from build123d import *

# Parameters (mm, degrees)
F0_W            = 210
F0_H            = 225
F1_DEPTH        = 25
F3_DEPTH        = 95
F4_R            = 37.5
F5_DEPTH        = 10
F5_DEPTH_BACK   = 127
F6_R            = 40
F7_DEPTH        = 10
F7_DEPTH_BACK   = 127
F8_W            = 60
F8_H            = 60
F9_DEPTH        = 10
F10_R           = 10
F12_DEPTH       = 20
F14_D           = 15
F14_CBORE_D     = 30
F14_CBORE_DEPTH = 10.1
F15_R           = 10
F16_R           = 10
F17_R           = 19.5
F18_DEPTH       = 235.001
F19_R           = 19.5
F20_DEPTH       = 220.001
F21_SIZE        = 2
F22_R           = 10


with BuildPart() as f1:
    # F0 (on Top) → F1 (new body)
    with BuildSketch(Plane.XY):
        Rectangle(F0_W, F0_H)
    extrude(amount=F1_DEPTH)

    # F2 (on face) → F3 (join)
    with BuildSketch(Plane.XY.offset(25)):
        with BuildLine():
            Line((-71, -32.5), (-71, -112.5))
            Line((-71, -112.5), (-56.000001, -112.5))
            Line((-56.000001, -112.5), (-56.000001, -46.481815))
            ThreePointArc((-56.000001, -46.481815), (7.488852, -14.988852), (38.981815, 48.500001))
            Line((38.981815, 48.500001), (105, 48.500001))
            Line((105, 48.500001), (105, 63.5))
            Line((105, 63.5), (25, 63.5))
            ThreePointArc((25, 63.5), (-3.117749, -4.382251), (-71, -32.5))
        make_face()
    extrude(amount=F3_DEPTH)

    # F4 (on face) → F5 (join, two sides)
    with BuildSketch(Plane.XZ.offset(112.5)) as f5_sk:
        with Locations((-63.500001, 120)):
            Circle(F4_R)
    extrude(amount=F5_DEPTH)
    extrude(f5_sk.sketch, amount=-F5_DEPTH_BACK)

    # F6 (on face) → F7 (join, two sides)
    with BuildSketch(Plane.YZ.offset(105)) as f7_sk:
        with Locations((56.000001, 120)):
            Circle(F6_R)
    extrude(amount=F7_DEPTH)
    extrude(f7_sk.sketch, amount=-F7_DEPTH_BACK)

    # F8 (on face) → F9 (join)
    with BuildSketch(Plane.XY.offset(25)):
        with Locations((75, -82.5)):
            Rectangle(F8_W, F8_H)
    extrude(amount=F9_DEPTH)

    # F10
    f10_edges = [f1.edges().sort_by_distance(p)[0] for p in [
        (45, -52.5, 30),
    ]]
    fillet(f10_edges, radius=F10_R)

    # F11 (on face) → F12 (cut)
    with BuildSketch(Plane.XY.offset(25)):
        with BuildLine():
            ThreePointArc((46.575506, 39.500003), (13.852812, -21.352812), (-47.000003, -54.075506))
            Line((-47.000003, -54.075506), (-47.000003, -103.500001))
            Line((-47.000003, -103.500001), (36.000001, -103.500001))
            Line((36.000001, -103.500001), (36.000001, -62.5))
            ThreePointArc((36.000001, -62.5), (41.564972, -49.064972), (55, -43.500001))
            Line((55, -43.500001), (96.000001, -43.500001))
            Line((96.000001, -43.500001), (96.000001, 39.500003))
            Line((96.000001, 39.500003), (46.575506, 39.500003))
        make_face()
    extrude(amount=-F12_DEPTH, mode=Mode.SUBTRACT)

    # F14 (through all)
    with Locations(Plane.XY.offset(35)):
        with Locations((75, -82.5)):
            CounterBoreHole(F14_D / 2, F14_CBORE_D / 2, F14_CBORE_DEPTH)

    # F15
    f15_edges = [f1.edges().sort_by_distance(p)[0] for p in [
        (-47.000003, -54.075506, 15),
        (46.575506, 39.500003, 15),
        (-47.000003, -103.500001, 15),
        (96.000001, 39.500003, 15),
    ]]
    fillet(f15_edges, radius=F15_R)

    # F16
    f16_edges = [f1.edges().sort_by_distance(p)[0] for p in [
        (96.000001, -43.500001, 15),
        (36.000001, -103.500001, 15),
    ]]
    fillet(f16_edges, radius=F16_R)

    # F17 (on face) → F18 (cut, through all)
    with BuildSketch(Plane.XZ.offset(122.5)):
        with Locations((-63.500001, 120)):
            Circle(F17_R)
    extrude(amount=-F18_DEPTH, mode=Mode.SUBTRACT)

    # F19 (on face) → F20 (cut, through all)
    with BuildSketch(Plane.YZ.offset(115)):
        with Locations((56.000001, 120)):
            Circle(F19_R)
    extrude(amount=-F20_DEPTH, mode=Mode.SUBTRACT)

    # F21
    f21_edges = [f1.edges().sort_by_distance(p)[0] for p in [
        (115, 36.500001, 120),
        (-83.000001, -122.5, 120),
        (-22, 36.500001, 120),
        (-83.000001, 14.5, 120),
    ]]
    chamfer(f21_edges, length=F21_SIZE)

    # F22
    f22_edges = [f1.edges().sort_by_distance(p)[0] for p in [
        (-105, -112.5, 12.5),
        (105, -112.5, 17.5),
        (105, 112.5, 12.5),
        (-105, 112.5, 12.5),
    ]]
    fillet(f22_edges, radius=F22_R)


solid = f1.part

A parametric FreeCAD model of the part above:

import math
import FreeCAD as App
import Part
import Sketcher


def edges_at(feature, points):
    """Names of the edges that pass closest to the given points."""
    edges = feature.Shape.Edges
    near = lambda p: min(range(len(edges)), key=lambda i: edges[i].distToShape(Part.Vertex(*p))[0])
    return sorted({f"Edge{near(p) + 1}" for p in points})

doc = App.newDocument("Part")
body = doc.addObject("PartDesign::Body", "Body")

# Sketch on XY plane
sketch1 = body.newObject("Sketcher::SketchObject", "Sketch")
sketch1.AttachmentSupport = (doc.getObject("XY_Plane"), [""])
sketch1.MapMode = "FlatFace"
sketch1.addGeometry([
    Part.LineSegment(App.Vector(-105, 112, 0), App.Vector(-105, -112, 0)),
    Part.LineSegment(App.Vector(-105, -112, 0), App.Vector(105, -112, 0)),
    Part.LineSegment(App.Vector(105, -112, 0), App.Vector(105, 112, 0)),
    Part.LineSegment(App.Vector(105, 112, 0), App.Vector(-105, 112, 0)),
], False)
sketch1.addConstraint([
    Sketcher.Constraint("Coincident", 0, 2, 1, 1),
    Sketcher.Constraint("Coincident", 1, 2, 2, 1),
    Sketcher.Constraint("Coincident", 2, 2, 3, 1),
    Sketcher.Constraint("Coincident", 3, 2, 0, 1),
    Sketcher.Constraint("Vertical", 0),
    Sketcher.Constraint("Horizontal", 1),
    Sketcher.Constraint("Vertical", 2),
    Sketcher.Constraint("Horizontal", 3),
    Sketcher.Constraint("Symmetric", 0, 2, 2, 2, -1, 1),
    Sketcher.Constraint("DistanceX", 1, 1, 1, 2, 210.0),
    Sketcher.Constraint("DistanceY", 0, 2, 0, 1, 225.0),
])
pad1 = body.newObject("PartDesign::Pad", "Pad")
pad1.Profile = sketch1
pad1.Length = 25

# Sketch on XY plane
sketch2 = body.newObject("Sketcher::SketchObject", "Sketch001")
sketch2.AttachmentSupport = (doc.getObject("XY_Plane"), [""])
sketch2.MapMode = "FlatFace"
sketch2.AttachmentOffset = App.Placement(App.Vector(0, 0, 25), App.Rotation())
sketch2.addGeometry([
    Part.LineSegment(App.Vector(-71, -32, 0), App.Vector(-71, -112, 0)),  # 0
    Part.LineSegment(App.Vector(-71, -112, 0), App.Vector(-56, -112, 0)),  # 1
    Part.LineSegment(App.Vector(-56, -112, 0), App.Vector(-56, -46, 0)),  # 2
    Part.ArcOfCircle(Part.Circle(App.Vector(-71, 63, 0), App.Vector(0, 0, 1), 111), math.radians(-82), math.radians(-8)),  # 3
    Part.LineSegment(App.Vector(39, 49, 0), App.Vector(105, 49, 0)),  # 4
    Part.LineSegment(App.Vector(105, 49, 0), App.Vector(105, 64, 0)),  # 5
    Part.LineSegment(App.Vector(105, 64, 0), App.Vector(25, 64, 0)),  # 6
    Part.ArcOfCircle(Part.Circle(App.Vector(-71, 63, 0), App.Vector(0, 0, 1), 96), math.radians(-90), math.radians(0)),  # 7
], False)
sketch2.addConstraint([
    Sketcher.Constraint("Coincident", 0, 2, 1, 1),
    Sketcher.Constraint("Coincident", 1, 2, 2, 1),
    Sketcher.Constraint("Coincident", 2, 2, 3, 1),
    Sketcher.Constraint("Coincident", 3, 2, 4, 1),
    Sketcher.Constraint("Coincident", 4, 2, 5, 1),
    Sketcher.Constraint("Coincident", 5, 2, 6, 1),
    Sketcher.Constraint("Coincident", 6, 2, 7, 2),
    Sketcher.Constraint("Coincident", 7, 1, 0, 1),
    Sketcher.Constraint("Vertical", 0),
    Sketcher.Constraint("Horizontal", 1),
    Sketcher.Constraint("Vertical", 2),
    Sketcher.Constraint("Horizontal", 4),
    Sketcher.Constraint("Vertical", 5),
    Sketcher.Constraint("Horizontal", 6),
    Sketcher.Constraint("Coincident", 7, 3, 3, 3),
    Sketcher.Constraint("Horizontal", 7, 3, 5, 2),
    Sketcher.Constraint("Vertical", 7, 3, 0, 2),
    Sketcher.Constraint("Equal", 6, 0),
    Sketcher.Constraint("Equal", 4, 2),
    Sketcher.Constraint("Radius", 7, 96.0),
    Sketcher.Constraint("DistanceX", 1, 1, 1, 2, 14.999999),
    Sketcher.Constraint("DistanceX", 6, 2, 6, 1, 80.0),
    Sketcher.Constraint("DistanceX", 7, 3, -1, 1, 71.0),
    Sketcher.Constraint("DistanceY", -1, 1, 7, 3, 63.5),
    Sketcher.Constraint("Radius", 3, 110.999995),
])
pad2 = body.newObject("PartDesign::Pad", "Pad001")
pad2.Profile = sketch2
pad2.Length = 95

# Sketch on XZ plane
sketch3 = body.newObject("Sketcher::SketchObject", "Sketch002")
sketch3.AttachmentSupport = (doc.getObject("XZ_Plane"), [""])
sketch3.MapMode = "FlatFace"
sketch3.AttachmentOffset = App.Placement(App.Vector(0, 0, 112.5), App.Rotation())
sketch3.addGeometry(Part.Circle(App.Vector(-64, 120, 0), App.Vector(0, 0, 1), 38), False)
sketch3.addConstraint([
    Sketcher.Constraint("Diameter", 0, 75.0),
    Sketcher.Constraint("DistanceY", -1, 1, 0, 3, 120.0),
    Sketcher.Constraint("DistanceX", 0, 3, -1, 1, 63.500001),
])
pad3 = body.newObject("PartDesign::Pad", "Pad002")
pad3.Profile = sketch3
pad3.Type = "TwoLengths"
pad3.Length = 10
pad3.Length2 = 127

# Sketch on YZ plane
sketch4 = body.newObject("Sketcher::SketchObject", "Sketch003")
sketch4.AttachmentSupport = (doc.getObject("YZ_Plane"), [""])
sketch4.MapMode = "FlatFace"
sketch4.AttachmentOffset = App.Placement(App.Vector(0, 0, 105), App.Rotation())
sketch4.addGeometry(Part.Circle(App.Vector(56, 120, 0), App.Vector(0, 0, 1), 40), False)
sketch4.addConstraint([
    Sketcher.Constraint("Diameter", 0, 80.0),
    Sketcher.Constraint("DistanceX", -1, 1, 0, 3, 56.000001),
    Sketcher.Constraint("DistanceY", -1, 1, 0, 3, 120.0),
])
pad4 = body.newObject("PartDesign::Pad", "Pad003")
pad4.Profile = sketch4
pad4.Type = "TwoLengths"
pad4.Length = 10
pad4.Length2 = 127

# Sketch on XY plane
sketch5 = body.newObject("Sketcher::SketchObject", "Sketch004")
sketch5.AttachmentSupport = (doc.getObject("XY_Plane"), [""])
sketch5.MapMode = "FlatFace"
sketch5.AttachmentOffset = App.Placement(App.Vector(0, 0, 25), App.Rotation())
sketch5.addGeometry([
    Part.LineSegment(App.Vector(45, -52, 0), App.Vector(45, -112, 0)),
    Part.LineSegment(App.Vector(45, -112, 0), App.Vector(105, -112, 0)),
    Part.LineSegment(App.Vector(105, -112, 0), App.Vector(105, -52, 0)),
    Part.LineSegment(App.Vector(105, -52, 0), App.Vector(45, -52, 0)),
], False)
sketch5.addConstraint([
    Sketcher.Constraint("Coincident", 0, 2, 1, 1),
    Sketcher.Constraint("Coincident", 1, 2, 2, 1),
    Sketcher.Constraint("Coincident", 2, 2, 3, 1),
    Sketcher.Constraint("Coincident", 3, 2, 0, 1),
    Sketcher.Constraint("Vertical", 0),
    Sketcher.Constraint("Horizontal", 1),
    Sketcher.Constraint("Vertical", 2),
    Sketcher.Constraint("Horizontal", 3),
    Sketcher.Constraint("Equal", 3, 0),
    Sketcher.Constraint("DistanceX", 1, 1, 1, 2, 60.0),
    Sketcher.Constraint("DistanceX", -1, 1, 0, 2, 45.0),
    Sketcher.Constraint("DistanceY", 0, 2, -1, 1, 112.5),
])
pad5 = body.newObject("PartDesign::Pad", "Pad004")
pad5.Profile = sketch5
pad5.Length = 10
doc.recompute()

fillet = body.newObject("PartDesign::Fillet", "Fillet")
fillet.Base = (pad5, edges_at(pad5, [(45, -52.5, 30)]))
fillet.Radius = 10

# Sketch on XY plane
sketch6 = body.newObject("Sketcher::SketchObject", "Sketch005")
sketch6.AttachmentSupport = (doc.getObject("XY_Plane"), [""])
sketch6.MapMode = "FlatFace"
sketch6.AttachmentOffset = App.Placement(App.Vector(0, 0, 25), App.Rotation())
sketch6.addGeometry([
    Part.ArcOfCircle(Part.Circle(App.Vector(-71, 64, 0), App.Vector(0, 0, 1), 120), math.radians(-78), math.radians(-12)),  # 0
    Part.LineSegment(App.Vector(-47, -54, 0), App.Vector(-47, -104, 0)),  # 1
    Part.LineSegment(App.Vector(-47, -104, 0), App.Vector(36, -104, 0)),  # 2
    Part.LineSegment(App.Vector(36, -104, 0), App.Vector(36, -62, 0)),  # 3
    Part.ArcOfCircle(Part.Circle(App.Vector(55, -63, 0), App.Vector(0, 0, 1), 19), math.radians(90), math.radians(180)),  # 4
    Part.LineSegment(App.Vector(55, -44, 0), App.Vector(96, -44, 0)),  # 5
    Part.LineSegment(App.Vector(96, -44, 0), App.Vector(96, 40, 0)),  # 6
    Part.LineSegment(App.Vector(96, 40, 0), App.Vector(47, 40, 0)),  # 7
], False)
sketch6.addConstraint([
    Sketcher.Constraint("Coincident", 0, 1, 1, 1),
    Sketcher.Constraint("Coincident", 1, 2, 2, 1),
    Sketcher.Constraint("Coincident", 2, 2, 3, 1),
    Sketcher.Constraint("Tangent", 3, 2, 4, 2),
    Sketcher.Constraint("Tangent", 4, 1, 5, 1),
    Sketcher.Constraint("Coincident", 5, 2, 6, 1),
    Sketcher.Constraint("Coincident", 6, 2, 7, 1),
    Sketcher.Constraint("Coincident", 7, 2, 0, 2),
    Sketcher.Constraint("Vertical", 1),
    Sketcher.Constraint("Horizontal", 2),
    Sketcher.Constraint("Vertical", 3),
    Sketcher.Constraint("Horizontal", 5),
    Sketcher.Constraint("Vertical", 6),
    Sketcher.Constraint("Horizontal", 7),
    Sketcher.Constraint("Equal", 7, 1),
    Sketcher.Constraint("Equal", 5, 3),
    Sketcher.Constraint("Equal", 2, 6),
    Sketcher.Constraint("Radius", 0, 119.999999),
    Sketcher.Constraint("Radius", 4, 18.999999),
    Sketcher.Constraint("DistanceX", 5, 1, 5, 2, 41.000001),
    Sketcher.Constraint("DistanceX", 0, 3, -1, 1, 71.000001),
    Sketcher.Constraint("DistanceX", -1, 1, 4, 3, 55.0),
    Sketcher.Constraint("DistanceX", 0, 3, 0, 1, 23.999998),
    Sketcher.Constraint("DistanceY", -1, 1, 0, 3, 63.500001),
])
pocket1 = body.newObject("PartDesign::Pocket", "Pocket")
pocket1.Profile = sketch6
pocket1.Length = 20

# Sketch on XY plane
sketch7 = body.newObject("Sketcher::SketchObject", "Sketch006")
sketch7.AttachmentSupport = (doc.getObject("XY_Plane"), [""])
sketch7.MapMode = "FlatFace"
sketch7.AttachmentOffset = App.Placement(App.Vector(0, 0, 35), App.Rotation())
sketch7.addGeometry(Part.Circle(App.Vector(75, -82, 0), App.Vector(0, 0, 1), 8), False)
sketch7.addConstraint([
    Sketcher.Constraint("Diameter", 0, 15.0),
    Sketcher.Constraint("DistanceX", -1, 1, 0, 3, 75.0),
    Sketcher.Constraint("DistanceY", 0, 3, -1, 1, 82.5),
])
doc.recompute()
hole = body.newObject("PartDesign::Hole", "Hole")
hole.Profile = sketch7
hole.ThreadType = "None"
hole.Diameter = 15
hole.DepthType = "ThroughAll"
hole.HoleCutType = "Counterbore"
hole.HoleCutDiameter = 30
hole.HoleCutDepth = 10.1
doc.recompute()

fillet2 = body.newObject("PartDesign::Fillet", "Fillet001")
fillet2.Base = (hole, edges_at(hole, [
    (-47, -54.076, 15),
    (46.576, 39.5, 15),
    (-47, -103.5, 15),
    (96, 39.5, 15),
]))
fillet2.Radius = 10
doc.recompute()

fillet3 = body.newObject("PartDesign::Fillet", "Fillet002")
fillet3.Base = (fillet2, edges_at(fillet2, [(96, -43.5, 15), (36, -103.5, 15)]))
fillet3.Radius = 10

# Sketch on XZ plane
sketch8 = body.newObject("Sketcher::SketchObject", "Sketch007")
sketch8.AttachmentSupport = (doc.getObject("XZ_Plane"), [""])
sketch8.MapMode = "FlatFace"
sketch8.AttachmentOffset = App.Placement(App.Vector(0, 0, 122.5), App.Rotation())
sketch8.addGeometry(Part.Circle(App.Vector(-64, 120, 0), App.Vector(0, 0, 1), 20), False)
sketch8.addConstraint([
    Sketcher.Constraint("Diameter", 0, 39.0),
    Sketcher.Constraint("DistanceY", -1, 1, 0, 3, 120.0),
    Sketcher.Constraint("DistanceX", 0, 3, -1, 1, 63.500001),
])
pocket2 = body.newObject("PartDesign::Pocket", "Pocket001")
pocket2.Profile = sketch8
pocket2.Type = "ThroughAll"

# Sketch on YZ plane
sketch9 = body.newObject("Sketcher::SketchObject", "Sketch008")
sketch9.AttachmentSupport = (doc.getObject("YZ_Plane"), [""])
sketch9.MapMode = "FlatFace"
sketch9.AttachmentOffset = App.Placement(App.Vector(0, 0, 115), App.Rotation())
sketch9.addGeometry(Part.Circle(App.Vector(56, 120, 0), App.Vector(0, 0, 1), 20), False)
sketch9.addConstraint([
    Sketcher.Constraint("Diameter", 0, 39.0),
    Sketcher.Constraint("DistanceX", -1, 1, 0, 3, 56.000001),
    Sketcher.Constraint("DistanceY", -1, 1, 0, 3, 120.0),
])
pocket3 = body.newObject("PartDesign::Pocket", "Pocket002")
pocket3.Profile = sketch9
pocket3.Type = "ThroughAll"
doc.recompute()

chamfer = body.newObject("PartDesign::Chamfer", "Chamfer")
chamfer.Base = (pocket3, edges_at(pocket3, [
    (115, 36.5, 120),
    (-83, -122.5, 120),
    (-22, 36.5, 120),
    (-83, 14.5, 120),
]))
chamfer.Size = 2
doc.recompute()

fillet4 = body.newObject("PartDesign::Fillet", "Fillet003")
fillet4.Base = (chamfer, edges_at(chamfer, [
    (-105, -112.5, 12.5),
    (105, -112.5, 17.5),
    (105, 112.5, 12.5),
    (-105, 112.5, 12.5),
]))
fillet4.Radius = 10

doc.recompute()
